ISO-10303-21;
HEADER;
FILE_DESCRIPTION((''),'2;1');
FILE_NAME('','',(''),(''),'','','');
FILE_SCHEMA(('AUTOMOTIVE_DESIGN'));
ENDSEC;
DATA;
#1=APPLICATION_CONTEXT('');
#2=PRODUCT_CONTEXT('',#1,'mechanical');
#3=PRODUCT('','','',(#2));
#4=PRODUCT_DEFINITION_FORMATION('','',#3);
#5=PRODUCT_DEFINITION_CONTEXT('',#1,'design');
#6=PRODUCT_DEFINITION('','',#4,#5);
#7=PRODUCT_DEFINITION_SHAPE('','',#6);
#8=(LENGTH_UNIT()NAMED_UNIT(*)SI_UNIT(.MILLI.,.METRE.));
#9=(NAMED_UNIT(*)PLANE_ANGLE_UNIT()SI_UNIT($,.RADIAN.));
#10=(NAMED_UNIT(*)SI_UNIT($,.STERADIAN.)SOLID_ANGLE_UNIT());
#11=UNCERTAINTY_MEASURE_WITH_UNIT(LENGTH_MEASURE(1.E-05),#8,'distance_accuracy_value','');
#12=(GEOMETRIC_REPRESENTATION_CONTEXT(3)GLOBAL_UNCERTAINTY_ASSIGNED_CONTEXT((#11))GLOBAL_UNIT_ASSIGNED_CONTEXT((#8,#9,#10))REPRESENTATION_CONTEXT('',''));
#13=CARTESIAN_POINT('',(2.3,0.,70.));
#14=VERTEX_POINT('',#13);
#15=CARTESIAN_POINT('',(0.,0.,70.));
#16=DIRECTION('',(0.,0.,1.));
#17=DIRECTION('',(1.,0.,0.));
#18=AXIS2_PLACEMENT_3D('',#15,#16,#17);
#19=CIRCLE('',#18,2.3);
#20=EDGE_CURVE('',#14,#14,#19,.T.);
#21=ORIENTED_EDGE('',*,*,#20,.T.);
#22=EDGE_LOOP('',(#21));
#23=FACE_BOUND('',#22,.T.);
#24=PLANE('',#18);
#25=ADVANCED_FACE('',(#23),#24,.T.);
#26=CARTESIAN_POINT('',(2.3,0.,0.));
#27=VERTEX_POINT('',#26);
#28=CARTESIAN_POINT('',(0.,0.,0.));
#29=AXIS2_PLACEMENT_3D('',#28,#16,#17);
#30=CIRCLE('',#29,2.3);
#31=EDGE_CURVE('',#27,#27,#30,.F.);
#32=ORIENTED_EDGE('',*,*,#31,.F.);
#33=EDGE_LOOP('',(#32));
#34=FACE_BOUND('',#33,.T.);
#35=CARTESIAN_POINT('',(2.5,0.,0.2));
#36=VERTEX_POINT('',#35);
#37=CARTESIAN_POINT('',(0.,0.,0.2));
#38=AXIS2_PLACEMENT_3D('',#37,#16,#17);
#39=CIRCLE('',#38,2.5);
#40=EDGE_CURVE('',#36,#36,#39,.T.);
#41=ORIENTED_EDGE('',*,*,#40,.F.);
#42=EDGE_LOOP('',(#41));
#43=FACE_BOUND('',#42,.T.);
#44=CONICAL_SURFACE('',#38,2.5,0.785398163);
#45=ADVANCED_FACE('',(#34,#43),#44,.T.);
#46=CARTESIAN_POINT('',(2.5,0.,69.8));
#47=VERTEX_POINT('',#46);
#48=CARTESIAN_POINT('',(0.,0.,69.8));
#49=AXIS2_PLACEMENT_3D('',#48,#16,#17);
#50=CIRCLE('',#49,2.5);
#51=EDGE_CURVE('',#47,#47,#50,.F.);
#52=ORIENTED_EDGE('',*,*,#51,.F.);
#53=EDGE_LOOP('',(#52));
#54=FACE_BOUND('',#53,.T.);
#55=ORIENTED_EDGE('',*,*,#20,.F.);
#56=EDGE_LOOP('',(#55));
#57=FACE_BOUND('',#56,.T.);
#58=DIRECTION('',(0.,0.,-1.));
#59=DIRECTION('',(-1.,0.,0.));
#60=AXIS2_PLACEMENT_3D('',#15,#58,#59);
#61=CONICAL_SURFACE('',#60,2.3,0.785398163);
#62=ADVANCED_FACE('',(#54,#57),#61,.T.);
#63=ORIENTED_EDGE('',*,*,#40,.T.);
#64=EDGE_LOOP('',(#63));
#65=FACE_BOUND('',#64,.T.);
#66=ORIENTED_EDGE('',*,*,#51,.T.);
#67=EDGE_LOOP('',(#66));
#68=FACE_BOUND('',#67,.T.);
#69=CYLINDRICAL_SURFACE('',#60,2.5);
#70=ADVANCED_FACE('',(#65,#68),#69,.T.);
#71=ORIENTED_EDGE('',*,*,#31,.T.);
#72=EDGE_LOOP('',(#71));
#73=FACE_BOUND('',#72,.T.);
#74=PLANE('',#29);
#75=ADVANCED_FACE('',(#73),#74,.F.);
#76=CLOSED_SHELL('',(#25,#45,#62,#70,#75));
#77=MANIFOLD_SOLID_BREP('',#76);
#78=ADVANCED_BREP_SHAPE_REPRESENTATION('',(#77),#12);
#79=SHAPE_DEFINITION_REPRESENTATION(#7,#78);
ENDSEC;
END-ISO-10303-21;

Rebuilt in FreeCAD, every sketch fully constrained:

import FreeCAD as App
import Part
import Sketcher
from FreeCAD import Vector
Q = App.Units.Quantity


def edges_at(feature, points):
    """Names of the edges that pass closest to the given points."""
    edges = feature.Shape.Edges
    near = lambda p: min(range(len(edges)), key=lambda i: edges[i].distToShape(Part.Vertex(*p))[0])
    return sorted({f"Edge{near(p) + 1}" for p in points})

doc = App.newDocument("Part")
body = doc.addObject("PartDesign::Body", "Body")

# Sketch on XY plane
sketch1 = doc.addObject("Sketcher::SketchObject", "Sketch")
body.addObject(sketch1)
sketch1.AttachmentSupport = (doc.XY_Plane, [""])
sketch1.MapMode = "FlatFace"
sketch1.addGeometry(Part.Circle(Vector(0, 0, 0), Vector(0, 0, 1), 2.5), False)
sketch1.addConstraint([
    Sketcher.Constraint("Coincident", 0, 3, -1, 1),
    Sketcher.Constraint("Diameter", 0, Q("5 mm")),
])
pad1 = doc.addObject("PartDesign::Pad", "Pad")
body.addObject(pad1)
pad1.Profile = sketch1
pad1.Length = 70
doc.recompute()

chamfer = doc.addObject("PartDesign::Chamfer", "Chamfer")
body.addObject(chamfer)
chamfer.Base = (pad1, edges_at(pad1, [(-2.5, 0, 0), (-2.5, 0, 70)]))
chamfer.Size = 0.2

doc.recompute()
